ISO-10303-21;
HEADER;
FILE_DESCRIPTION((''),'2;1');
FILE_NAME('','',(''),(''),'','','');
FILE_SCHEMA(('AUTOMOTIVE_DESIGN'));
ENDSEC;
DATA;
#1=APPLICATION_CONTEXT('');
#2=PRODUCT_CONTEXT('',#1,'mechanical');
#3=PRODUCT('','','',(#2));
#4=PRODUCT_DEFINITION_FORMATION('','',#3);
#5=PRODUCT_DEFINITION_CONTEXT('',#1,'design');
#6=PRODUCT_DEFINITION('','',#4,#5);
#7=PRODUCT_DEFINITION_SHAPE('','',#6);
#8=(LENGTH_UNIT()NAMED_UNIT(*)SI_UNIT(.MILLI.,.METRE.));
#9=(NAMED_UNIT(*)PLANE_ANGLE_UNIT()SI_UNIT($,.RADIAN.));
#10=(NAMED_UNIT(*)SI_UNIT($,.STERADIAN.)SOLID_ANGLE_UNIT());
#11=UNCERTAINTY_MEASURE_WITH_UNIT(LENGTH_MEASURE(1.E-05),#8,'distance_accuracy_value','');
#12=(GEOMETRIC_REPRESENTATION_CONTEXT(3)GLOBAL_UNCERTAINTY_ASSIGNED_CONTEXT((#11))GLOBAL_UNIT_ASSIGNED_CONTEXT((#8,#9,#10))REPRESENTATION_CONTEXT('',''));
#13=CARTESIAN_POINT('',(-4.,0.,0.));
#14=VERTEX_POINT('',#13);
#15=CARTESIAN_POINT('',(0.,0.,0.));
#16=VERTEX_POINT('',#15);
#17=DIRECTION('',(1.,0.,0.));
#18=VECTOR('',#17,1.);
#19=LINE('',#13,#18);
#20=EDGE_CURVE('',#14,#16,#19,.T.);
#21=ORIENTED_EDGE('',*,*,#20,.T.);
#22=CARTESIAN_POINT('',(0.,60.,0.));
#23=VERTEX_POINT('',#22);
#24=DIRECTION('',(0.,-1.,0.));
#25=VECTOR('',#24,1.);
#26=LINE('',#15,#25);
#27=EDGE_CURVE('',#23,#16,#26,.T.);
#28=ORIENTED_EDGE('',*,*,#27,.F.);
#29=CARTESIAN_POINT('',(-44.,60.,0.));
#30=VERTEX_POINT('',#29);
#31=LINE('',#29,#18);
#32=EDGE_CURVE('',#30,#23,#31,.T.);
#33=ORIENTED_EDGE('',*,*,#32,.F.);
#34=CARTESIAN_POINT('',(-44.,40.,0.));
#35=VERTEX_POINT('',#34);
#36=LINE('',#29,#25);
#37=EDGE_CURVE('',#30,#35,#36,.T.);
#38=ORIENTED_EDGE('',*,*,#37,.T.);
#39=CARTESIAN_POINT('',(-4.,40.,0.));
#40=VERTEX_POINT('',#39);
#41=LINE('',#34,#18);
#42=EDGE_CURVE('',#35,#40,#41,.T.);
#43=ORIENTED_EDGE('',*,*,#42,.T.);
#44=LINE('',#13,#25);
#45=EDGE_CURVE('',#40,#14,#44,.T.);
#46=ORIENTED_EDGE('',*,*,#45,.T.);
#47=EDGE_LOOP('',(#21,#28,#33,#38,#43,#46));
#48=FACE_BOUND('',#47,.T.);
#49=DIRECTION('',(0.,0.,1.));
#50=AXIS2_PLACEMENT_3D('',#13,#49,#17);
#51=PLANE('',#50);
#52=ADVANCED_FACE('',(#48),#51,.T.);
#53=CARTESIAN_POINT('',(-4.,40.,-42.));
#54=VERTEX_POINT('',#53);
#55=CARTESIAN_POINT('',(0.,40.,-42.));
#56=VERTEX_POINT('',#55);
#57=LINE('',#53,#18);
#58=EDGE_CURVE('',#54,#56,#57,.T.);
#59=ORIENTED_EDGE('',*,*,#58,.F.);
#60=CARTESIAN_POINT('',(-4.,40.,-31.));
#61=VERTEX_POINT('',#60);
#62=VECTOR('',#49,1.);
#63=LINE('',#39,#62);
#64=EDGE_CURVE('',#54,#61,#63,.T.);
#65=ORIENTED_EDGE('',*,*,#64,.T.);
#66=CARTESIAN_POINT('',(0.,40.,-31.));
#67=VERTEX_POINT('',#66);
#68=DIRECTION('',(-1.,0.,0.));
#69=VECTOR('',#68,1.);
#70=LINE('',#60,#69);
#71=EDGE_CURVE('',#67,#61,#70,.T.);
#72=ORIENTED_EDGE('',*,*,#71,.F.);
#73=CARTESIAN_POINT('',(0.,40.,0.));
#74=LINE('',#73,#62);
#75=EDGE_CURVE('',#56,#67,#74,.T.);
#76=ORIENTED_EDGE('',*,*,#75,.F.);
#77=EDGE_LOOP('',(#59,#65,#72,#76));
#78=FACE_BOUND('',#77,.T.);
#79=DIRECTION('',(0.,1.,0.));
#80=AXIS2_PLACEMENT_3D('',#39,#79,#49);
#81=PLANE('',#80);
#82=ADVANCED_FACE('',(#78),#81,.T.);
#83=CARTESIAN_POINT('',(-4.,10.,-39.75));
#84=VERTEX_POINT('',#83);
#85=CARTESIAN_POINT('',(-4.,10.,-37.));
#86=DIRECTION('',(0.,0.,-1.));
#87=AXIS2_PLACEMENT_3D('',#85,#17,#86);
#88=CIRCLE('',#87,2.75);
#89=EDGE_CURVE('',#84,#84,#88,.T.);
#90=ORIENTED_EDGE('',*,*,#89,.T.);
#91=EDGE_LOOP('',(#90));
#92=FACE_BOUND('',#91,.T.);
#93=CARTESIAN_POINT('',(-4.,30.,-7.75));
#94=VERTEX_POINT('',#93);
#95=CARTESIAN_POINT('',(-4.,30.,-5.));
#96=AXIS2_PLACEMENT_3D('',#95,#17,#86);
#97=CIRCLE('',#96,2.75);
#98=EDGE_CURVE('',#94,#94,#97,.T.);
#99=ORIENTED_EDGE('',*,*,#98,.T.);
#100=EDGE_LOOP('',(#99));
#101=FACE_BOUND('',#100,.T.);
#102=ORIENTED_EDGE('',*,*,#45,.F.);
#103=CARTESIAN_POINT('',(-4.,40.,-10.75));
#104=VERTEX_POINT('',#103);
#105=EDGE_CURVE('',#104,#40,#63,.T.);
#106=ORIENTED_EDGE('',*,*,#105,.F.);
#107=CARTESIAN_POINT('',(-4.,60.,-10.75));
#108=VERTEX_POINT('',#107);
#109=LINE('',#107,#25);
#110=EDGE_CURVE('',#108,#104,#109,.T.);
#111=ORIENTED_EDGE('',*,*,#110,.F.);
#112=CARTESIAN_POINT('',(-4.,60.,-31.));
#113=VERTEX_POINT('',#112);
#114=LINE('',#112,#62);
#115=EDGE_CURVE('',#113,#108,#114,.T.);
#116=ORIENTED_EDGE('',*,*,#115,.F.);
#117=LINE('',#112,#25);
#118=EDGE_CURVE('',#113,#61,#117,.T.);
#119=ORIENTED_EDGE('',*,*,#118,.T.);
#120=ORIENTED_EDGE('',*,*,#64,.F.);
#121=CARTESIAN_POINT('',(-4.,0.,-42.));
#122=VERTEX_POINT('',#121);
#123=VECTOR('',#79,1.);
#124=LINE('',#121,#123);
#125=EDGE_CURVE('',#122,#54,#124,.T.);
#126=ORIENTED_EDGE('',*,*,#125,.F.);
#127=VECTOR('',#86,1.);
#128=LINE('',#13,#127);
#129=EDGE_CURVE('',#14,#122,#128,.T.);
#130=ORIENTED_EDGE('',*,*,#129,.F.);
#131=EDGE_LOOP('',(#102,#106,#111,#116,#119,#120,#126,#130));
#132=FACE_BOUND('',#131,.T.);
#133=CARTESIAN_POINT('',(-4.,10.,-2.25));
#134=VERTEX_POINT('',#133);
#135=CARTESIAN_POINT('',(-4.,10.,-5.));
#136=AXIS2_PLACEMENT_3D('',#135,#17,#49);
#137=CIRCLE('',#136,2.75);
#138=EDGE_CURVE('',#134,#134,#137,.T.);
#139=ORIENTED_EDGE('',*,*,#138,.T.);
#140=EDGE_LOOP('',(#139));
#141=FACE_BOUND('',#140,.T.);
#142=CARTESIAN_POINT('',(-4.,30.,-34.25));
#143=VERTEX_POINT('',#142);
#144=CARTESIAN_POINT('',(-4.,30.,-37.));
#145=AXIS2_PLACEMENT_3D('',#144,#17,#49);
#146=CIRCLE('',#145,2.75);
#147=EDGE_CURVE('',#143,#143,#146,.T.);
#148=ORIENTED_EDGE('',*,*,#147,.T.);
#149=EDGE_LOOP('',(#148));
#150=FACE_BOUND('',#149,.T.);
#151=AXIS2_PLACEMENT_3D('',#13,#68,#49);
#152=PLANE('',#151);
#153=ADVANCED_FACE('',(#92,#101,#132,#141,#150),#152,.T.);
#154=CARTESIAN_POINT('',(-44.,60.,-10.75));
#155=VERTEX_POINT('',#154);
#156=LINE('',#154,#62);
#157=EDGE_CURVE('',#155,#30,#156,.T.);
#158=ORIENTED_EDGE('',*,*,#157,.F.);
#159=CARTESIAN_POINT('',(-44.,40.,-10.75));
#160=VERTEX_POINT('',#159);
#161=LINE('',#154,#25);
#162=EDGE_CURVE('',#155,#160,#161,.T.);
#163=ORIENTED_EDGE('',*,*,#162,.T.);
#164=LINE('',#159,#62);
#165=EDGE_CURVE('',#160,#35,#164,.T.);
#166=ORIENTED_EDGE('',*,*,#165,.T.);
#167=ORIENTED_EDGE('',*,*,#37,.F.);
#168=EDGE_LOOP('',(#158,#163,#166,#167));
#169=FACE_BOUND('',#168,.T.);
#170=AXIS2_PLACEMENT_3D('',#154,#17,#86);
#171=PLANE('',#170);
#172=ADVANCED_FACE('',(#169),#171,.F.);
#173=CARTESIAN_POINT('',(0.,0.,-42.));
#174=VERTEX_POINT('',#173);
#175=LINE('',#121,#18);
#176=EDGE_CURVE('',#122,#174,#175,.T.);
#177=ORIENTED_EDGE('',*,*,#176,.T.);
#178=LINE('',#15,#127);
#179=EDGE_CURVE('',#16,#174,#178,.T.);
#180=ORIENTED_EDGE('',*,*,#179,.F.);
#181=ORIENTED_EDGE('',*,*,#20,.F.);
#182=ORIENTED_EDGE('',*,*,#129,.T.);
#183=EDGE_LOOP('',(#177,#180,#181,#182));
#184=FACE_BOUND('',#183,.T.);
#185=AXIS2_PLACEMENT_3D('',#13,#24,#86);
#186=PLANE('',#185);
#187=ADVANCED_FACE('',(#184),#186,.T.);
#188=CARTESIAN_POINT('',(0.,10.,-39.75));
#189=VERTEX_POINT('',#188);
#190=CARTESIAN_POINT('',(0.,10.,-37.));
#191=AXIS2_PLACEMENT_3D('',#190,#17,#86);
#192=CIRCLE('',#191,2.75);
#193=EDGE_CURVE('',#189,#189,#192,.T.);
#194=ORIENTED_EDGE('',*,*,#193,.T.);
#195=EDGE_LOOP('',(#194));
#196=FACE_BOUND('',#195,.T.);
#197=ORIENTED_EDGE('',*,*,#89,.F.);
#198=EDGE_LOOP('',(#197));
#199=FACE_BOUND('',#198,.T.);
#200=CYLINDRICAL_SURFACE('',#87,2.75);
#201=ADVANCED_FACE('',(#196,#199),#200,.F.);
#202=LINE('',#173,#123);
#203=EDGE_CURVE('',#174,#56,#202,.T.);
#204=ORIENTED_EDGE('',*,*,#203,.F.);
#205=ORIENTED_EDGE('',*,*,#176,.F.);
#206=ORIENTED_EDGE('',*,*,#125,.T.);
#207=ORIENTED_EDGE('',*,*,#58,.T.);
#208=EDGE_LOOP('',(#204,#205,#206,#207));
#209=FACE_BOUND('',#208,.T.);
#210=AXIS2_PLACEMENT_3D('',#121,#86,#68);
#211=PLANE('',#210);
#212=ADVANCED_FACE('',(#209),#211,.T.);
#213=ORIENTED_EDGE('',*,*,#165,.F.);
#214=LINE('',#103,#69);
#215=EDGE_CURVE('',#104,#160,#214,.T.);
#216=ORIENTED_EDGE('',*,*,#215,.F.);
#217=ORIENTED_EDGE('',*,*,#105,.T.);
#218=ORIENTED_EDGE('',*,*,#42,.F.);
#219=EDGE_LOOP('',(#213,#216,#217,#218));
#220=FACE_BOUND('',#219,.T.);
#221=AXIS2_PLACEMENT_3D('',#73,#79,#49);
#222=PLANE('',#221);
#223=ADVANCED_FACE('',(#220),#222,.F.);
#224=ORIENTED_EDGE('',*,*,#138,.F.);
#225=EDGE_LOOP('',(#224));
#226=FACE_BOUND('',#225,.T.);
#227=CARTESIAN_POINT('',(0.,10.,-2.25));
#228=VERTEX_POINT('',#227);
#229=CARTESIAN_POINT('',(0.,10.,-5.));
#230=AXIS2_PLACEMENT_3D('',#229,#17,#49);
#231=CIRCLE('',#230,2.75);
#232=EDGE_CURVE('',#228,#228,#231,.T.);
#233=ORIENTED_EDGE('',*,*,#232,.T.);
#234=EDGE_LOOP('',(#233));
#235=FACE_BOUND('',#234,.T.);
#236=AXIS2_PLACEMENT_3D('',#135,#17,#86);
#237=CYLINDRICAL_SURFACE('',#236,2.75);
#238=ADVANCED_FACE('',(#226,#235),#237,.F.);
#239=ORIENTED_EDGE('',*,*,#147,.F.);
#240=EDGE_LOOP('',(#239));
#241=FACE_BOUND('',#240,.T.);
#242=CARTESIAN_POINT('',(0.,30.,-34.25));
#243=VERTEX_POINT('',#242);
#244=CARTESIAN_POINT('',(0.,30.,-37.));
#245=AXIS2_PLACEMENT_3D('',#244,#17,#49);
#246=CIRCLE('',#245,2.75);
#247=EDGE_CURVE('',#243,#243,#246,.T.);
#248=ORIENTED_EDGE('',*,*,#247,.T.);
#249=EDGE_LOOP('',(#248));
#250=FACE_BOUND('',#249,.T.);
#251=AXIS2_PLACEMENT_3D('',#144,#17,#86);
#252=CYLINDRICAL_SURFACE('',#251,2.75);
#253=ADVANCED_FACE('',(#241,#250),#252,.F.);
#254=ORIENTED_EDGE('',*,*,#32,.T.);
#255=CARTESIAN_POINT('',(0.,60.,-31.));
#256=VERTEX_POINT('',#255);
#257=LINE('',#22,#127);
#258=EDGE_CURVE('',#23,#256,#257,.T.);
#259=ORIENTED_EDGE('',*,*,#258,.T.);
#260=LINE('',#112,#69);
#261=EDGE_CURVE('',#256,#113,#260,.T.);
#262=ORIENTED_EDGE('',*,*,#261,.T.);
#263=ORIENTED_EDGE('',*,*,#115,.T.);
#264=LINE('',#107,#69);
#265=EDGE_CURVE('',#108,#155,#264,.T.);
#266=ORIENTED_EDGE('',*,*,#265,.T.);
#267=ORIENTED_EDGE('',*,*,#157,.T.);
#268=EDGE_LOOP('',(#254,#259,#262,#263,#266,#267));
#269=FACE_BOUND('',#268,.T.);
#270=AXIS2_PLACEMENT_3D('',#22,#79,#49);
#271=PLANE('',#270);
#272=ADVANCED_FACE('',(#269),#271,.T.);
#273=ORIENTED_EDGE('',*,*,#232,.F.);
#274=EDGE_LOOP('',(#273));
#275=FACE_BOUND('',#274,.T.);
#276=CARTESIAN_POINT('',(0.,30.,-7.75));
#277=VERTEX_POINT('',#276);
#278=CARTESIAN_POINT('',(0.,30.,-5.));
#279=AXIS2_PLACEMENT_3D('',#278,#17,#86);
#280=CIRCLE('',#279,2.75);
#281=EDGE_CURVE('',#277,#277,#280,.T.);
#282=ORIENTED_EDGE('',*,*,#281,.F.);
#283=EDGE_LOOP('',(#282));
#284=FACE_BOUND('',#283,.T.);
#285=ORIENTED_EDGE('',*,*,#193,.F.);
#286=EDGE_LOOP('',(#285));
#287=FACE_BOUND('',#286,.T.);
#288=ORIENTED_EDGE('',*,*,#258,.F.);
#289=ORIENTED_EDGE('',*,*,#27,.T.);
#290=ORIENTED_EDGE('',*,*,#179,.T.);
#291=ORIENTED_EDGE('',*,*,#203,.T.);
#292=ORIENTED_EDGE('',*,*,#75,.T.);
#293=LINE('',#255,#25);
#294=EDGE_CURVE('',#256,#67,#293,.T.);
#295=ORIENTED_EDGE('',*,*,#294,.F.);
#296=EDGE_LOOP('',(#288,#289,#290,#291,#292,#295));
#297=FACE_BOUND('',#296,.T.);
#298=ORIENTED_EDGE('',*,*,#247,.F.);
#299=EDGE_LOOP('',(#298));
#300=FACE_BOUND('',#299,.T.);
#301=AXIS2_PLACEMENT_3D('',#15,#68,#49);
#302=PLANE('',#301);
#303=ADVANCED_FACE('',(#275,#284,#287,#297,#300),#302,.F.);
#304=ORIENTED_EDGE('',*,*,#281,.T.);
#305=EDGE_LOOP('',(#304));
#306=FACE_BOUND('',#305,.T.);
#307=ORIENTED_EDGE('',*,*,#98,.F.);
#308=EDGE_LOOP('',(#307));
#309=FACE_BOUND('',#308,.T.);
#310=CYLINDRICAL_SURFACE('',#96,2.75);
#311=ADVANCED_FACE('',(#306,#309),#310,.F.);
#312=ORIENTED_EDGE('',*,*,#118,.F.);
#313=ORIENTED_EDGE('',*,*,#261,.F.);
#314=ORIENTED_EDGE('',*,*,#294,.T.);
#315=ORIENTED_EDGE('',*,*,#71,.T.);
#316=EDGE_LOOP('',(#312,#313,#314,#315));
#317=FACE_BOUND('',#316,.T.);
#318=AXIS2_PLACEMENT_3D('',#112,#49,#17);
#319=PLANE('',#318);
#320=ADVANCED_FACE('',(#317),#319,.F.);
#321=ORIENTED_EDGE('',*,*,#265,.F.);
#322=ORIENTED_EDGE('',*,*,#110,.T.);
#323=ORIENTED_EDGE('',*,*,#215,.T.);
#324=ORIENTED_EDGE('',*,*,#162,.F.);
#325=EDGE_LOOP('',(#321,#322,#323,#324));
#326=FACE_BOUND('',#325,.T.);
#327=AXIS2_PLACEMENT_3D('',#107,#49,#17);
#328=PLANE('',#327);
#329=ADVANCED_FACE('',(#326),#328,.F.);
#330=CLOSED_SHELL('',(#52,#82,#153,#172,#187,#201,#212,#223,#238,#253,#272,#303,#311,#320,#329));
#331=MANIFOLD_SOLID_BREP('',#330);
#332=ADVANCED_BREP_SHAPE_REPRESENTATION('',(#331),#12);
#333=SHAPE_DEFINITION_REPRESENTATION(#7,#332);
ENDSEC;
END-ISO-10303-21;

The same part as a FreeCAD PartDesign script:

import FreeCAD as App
import Part
import Sketcher
Q = App.Units.Quantity


def add_polygon(sketch, points):
    """Adds a closed chain of lines whose ends are joined by coincident constraints."""
    first, n = sketch.GeometryCount, len(points)
    for a, b in zip(points, points[1:] + points[:1]):
        sketch.addGeometry(Part.LineSegment(App.Vector(*a, 0), App.Vector(*b, 0)), False)
    for i in range(n):
        sketch.addConstraint(Sketcher.Constraint("Coincident", first + i, 2, first + (i + 1) % n, 1))

doc = App.newDocument("Part")
body = doc.addObject("PartDesign::Body", "Body")

sketch1 = body.newObject("Sketcher::SketchObject", "Sketch")
sketch1.AttachmentSupport = (doc.getObject("YZ_Plane"), [""])
sketch1.MapMode = "FlatFace"
add_polygon(sketch1, [(40, 0), (0, 0), (0, -42), (40, -42)])
sketch1.addGeometry(Part.Circle(App.Vector(10, -5, 0), App.Vector(0, 0, 1), 2.8), False)
sketch1.addGeometry(Part.Circle(App.Vector(10, -37, 0), App.Vector(0, 0, 1), 2.8), False)
sketch1.addGeometry(Part.Circle(App.Vector(30, -5, 0), App.Vector(0, 0, 1), 2.8), False)
sketch1.addGeometry(Part.Circle(App.Vector(30, -37, 0), App.Vector(0, 0, 1), 2.8), False)
sketch1.addConstraint(Sketcher.Constraint("Horizontal", 0))
sketch1.addConstraint(Sketcher.Constraint("Vertical", 1))
sketch1.addConstraint(Sketcher.Constraint("Horizontal", 2))
sketch1.addConstraint(Sketcher.Constraint("Vertical", 3))
sketch1.addConstraint(Sketcher.Constraint("Coincident", 0, 2, -1, 1))
sketch1.addConstraint(Sketcher.Constraint("Equal", 4, 5))
sketch1.addConstraint(Sketcher.Constraint("Equal", 5, 6))
sketch1.addConstraint(Sketcher.Constraint("Equal", 6, 7))
sketch1.addConstraint(Sketcher.Constraint("Horizontal", 4, 3, 6, 3))
sketch1.addConstraint(Sketcher.Constraint("Horizontal", 5, 3, 7, 3))
sketch1.addConstraint(Sketcher.Constraint("Vertical", 4, 3, 5, 3))
sketch1.addConstraint(Sketcher.Constraint("Vertical", 6, 3, 7, 3))
sketch1.addConstraint(Sketcher.Constraint("Diameter", 4, Q("5.5 mm")))
sketch1.addConstraint(Sketcher.Constraint("DistanceX", 0, 2, 0, 1, Q("40 mm")))
sketch1.addConstraint(Sketcher.Constraint("DistanceY", 1, 2, 1, 1, Q("42 mm")))
sketch1.addConstraint(Sketcher.Constraint("DistanceX", -1, 1, 4, 3, Q("10 mm")))
sketch1.addConstraint(Sketcher.Constraint("DistanceY", 4, 3, -1, 1, Q("5 mm")))
sketch1.addConstraint(Sketcher.Constraint("DistanceY", 5, 3, -1, 1, Q("37 mm")))
sketch1.addConstraint(Sketcher.Constraint("DistanceX", -1, 1, 6, 3, Q("30 mm")))
pad1 = body.newObject("PartDesign::Pad", "Pad")
pad1.Profile = sketch1
pad1.Length = 4
pad1.Reversed = True

sketch2 = body.newObject("Sketcher::SketchObject", "Sketch001")
sketch2.AttachmentSupport = (doc.getObject("XZ_Plane"), [""])
sketch2.MapMode = "FlatFace"
sketch2.AttachmentOffset = App.Placement(App.Vector(0, 0, -40), App.Rotation())
add_polygon(sketch2, [(-4, -31), (-4, -10.8), (-44, -10.8), (-44, 0), (0, 0), (0, -31)])
sketch2.addConstraint(Sketcher.Constraint("Vertical", 0))
sketch2.addConstraint(Sketcher.Constraint("Horizontal", 1))
sketch2.addConstraint(Sketcher.Constraint("Vertical", 2))
sketch2.addConstraint(Sketcher.Constraint("Horizontal", 3))
sketch2.addConstraint(Sketcher.Constraint("Vertical", 4))
sketch2.addConstraint(Sketcher.Constraint("Horizontal", 5))
sketch2.addConstraint(Sketcher.Constraint("Coincident", 3, 2, -1, 1))
sketch2.addConstraint(Sketcher.Constraint("DistanceX", 1, 2, 1, 1, Q("40 mm")))
sketch2.addConstraint(Sketcher.Constraint("DistanceX", 3, 1, 3, 2, Q("44 mm")))
sketch2.addConstraint(Sketcher.Constraint("DistanceY", 4, 2, 4, 1, Q("31 mm")))
sketch2.addConstraint(Sketcher.Constraint("DistanceY", 0, 1, 0, 2, Q("20.25 mm")))
pad2 = body.newObject("PartDesign::Pad", "Pad001")
pad2.Profile = sketch2
pad2.Length = 20
pad2.Reversed = True

doc.recompute()
